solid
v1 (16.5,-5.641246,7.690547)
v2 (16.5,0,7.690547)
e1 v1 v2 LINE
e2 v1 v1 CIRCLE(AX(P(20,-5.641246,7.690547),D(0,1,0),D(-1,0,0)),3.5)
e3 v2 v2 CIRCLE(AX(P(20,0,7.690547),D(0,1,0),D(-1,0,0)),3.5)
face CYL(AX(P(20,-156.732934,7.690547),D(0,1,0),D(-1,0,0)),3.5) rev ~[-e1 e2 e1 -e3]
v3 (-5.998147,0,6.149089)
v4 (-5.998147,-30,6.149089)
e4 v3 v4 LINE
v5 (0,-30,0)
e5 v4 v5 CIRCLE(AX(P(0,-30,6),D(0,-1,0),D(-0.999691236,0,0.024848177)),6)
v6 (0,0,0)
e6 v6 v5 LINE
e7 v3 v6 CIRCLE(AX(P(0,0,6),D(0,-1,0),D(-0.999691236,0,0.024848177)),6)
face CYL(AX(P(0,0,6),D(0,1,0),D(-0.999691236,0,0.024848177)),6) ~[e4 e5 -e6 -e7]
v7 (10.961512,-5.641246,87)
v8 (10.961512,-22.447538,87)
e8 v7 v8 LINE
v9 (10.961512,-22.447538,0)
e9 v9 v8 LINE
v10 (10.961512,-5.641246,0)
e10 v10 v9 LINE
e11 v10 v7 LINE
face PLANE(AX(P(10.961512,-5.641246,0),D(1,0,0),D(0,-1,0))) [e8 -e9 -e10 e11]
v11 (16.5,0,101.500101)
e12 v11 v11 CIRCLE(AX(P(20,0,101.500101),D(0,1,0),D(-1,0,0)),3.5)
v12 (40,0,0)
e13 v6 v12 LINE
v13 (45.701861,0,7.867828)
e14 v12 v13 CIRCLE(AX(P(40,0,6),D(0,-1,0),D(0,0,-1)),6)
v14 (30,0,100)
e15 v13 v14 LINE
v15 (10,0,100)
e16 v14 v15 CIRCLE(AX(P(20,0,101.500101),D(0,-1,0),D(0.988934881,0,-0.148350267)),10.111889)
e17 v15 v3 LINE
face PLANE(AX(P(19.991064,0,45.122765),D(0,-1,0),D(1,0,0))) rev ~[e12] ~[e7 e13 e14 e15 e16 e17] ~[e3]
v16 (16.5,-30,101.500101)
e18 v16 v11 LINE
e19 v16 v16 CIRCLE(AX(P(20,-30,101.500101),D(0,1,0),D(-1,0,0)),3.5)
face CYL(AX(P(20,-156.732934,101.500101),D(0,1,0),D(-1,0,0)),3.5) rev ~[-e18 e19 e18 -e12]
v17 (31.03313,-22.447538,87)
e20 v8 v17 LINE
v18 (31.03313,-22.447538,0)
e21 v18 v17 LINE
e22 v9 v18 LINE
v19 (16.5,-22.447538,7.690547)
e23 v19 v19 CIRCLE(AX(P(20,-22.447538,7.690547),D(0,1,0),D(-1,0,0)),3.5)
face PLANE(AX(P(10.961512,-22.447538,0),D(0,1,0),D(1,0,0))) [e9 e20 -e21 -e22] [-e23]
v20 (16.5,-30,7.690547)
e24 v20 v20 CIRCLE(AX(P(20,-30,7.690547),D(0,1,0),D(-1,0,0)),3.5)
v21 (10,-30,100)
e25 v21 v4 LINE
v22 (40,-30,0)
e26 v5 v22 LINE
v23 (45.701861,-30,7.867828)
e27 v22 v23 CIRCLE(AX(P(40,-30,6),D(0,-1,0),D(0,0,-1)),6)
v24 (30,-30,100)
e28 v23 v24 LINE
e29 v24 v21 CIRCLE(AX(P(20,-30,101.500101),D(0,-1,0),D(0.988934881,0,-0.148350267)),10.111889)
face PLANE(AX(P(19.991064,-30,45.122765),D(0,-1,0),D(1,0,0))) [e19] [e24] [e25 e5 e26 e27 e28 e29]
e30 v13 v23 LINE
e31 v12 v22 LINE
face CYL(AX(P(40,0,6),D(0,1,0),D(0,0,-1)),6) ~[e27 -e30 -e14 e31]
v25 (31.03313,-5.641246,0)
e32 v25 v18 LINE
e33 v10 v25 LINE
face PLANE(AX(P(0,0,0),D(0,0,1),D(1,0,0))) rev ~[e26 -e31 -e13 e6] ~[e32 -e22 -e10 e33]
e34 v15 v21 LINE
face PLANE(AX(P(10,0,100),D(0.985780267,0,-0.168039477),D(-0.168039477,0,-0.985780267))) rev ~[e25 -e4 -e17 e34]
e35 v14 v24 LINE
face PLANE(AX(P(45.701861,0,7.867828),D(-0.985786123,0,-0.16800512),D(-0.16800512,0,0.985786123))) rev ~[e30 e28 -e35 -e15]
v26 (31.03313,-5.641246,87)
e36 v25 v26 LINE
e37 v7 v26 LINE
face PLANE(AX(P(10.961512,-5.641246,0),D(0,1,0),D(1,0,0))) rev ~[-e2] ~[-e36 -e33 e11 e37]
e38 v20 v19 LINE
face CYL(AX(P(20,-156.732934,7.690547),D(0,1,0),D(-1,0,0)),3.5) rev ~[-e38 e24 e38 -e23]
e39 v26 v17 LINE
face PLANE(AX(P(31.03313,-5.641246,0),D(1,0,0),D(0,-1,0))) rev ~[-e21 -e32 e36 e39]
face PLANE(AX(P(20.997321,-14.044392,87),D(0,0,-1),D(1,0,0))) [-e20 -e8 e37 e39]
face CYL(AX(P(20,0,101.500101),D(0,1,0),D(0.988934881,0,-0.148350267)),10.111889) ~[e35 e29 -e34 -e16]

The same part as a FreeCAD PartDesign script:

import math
import FreeCAD as App
import Part
import Sketcher
from FreeCAD import Vector

doc = App.newDocument("Part")
body = doc.addObject("PartDesign::Body", "Body")

sketch1 = doc.addObject("Sketcher::SketchObject", "Sketch")
body.addObject(sketch1)
sketch1.AttachmentSupport = (doc.XZ_Plane, [""])
sketch1.MapMode = "FlatFace"
sketch1.addGeometry([
    Part.ArcOfCircle(Part.Circle(Vector(0, 6, 0), Vector(0, 0, 1), 6), math.radians(178.576158), math.radians(270)),
    Part.LineSegment(Vector(0, 0, 0), Vector(40, 0, 0)),
    Part.ArcOfCircle(Part.Circle(Vector(40, 6, 0), Vector(0, 0, 1), 6), math.radians(-90), math.radians(18.137874)),
    Part.LineSegment(Vector(45.701861, 7.867828, 0), Vector(30, 100, 0)),
    Part.ArcOfCircle(Part.Circle(Vector(20, 101.500101, 0), Vector(0, 0, 1), 10.111889), math.radians(-8.531334), math.radians(188.531334)),
    Part.LineSegment(Vector(10, 100, 0), Vector(-5.998147, 6.149089, 0)),
], False)
sketch1.addConstraint([
    Sketcher.Constraint("Tangent", 0, 2, 1, 1),
    Sketcher.Constraint("Tangent", 1, 2, 2, 1),
    Sketcher.Constraint("Coincident", 2, 2, 3, 1),
    Sketcher.Constraint("Coincident", 3, 2, 4, 1),
    Sketcher.Constraint("Coincident", 4, 2, 5, 1),
    Sketcher.Constraint("Coincident", 5, 2, 0, 1),
    Sketcher.Constraint("Horizontal", 1),
    Sketcher.Constraint("Coincident", 0, 2, -1, 1),
    Sketcher.Constraint("Equal", 0, 2),
    Sketcher.Constraint("Horizontal", 3, 2, 4, 2),
    Sketcher.Constraint("Radius", 0, 6.0),
    Sketcher.Constraint("DistanceX", 1, 1, 1, 2, 40.0),
    Sketcher.Constraint("DistanceX", -1, 1, 4, 3, 20.0),
    Sketcher.Constraint("DistanceX", -1, 1, 3, 2, 30.0),
    Sketcher.Constraint("DistanceY", -1, 1, 3, 2, 100.0),
    Sketcher.Constraint("Radius", 4, 10.111889),
    Sketcher.Constraint("Distance", 3, 93.46061),
    Sketcher.Constraint("DistanceY", -1, 1, 5, 2, 6.149089),
])
pad1 = doc.addObject("PartDesign::Pad", "Pad")
body.addObject(pad1)
pad1.Profile = sketch1
pad1.Length = 30

sketch2 = doc.addObject("Sketcher::SketchObject", "Sketch001")
body.addObject(sketch2)
sketch2.AttachmentSupport = (doc.XZ_Plane, [""])
sketch2.MapMode = "FlatFace"
sketch2.AttachmentOffset = App.Placement(Vector(0, 0, 30), App.Rotation())
sketch2.addGeometry(Part.Circle(Vector(20, 7.690547, 0), Vector(0, 0, 1), 3.5), False)
sketch2.addConstraint([
    Sketcher.Constraint("Diameter", 0, 7.0),
    Sketcher.Constraint("DistanceX", -1, 1, 0, 3, 20.0),
    Sketcher.Constraint("DistanceY", -1, 1, 0, 3, 7.690547),
])
doc.recompute()
hole = doc.addObject("PartDesign::Hole", "Hole")
body.addObject(hole)
hole.Profile = sketch2
hole.ThreadType = "None"
hole.Diameter = 7
hole.DepthType = "ThroughAll"

sketch3 = doc.addObject("Sketcher::SketchObject", "Sketch002")
body.addObject(sketch3)
sketch3.AttachmentSupport = (doc.XZ_Plane, [""])
sketch3.MapMode = "FlatFace"
sketch3.AttachmentOffset = App.Placement(Vector(0, 0, 30), App.Rotation())
sketch3.addGeometry(Part.Circle(Vector(20, 101.500101, 0), Vector(0, 0, 1), 3.5), False)
sketch3.addConstraint([
    Sketcher.Constraint("Diameter", 0, 7.0),
    Sketcher.Constraint("DistanceX", -1, 1, 0, 3, 20.0),
    Sketcher.Constraint("DistanceY", -1, 1, 0, 3, 101.500101),
])
doc.recompute()
hole2 = doc.addObject("PartDesign::Hole", "Hole001")
body.addObject(hole2)
hole2.Profile = sketch3
hole2.ThreadType = "None"
hole2.Diameter = 7
hole2.DepthType = "ThroughAll"

sketch4 = doc.addObject("Sketcher::SketchObject", "Sketch003")
body.addObject(sketch4)
sketch4.AttachmentSupport = (doc.XY_Plane, [""])
sketch4.MapMode = "FlatFace"
sketch4.addGeometry([
    Part.LineSegment(Vector(10.961512, -22.447538, 0), Vector(10.961512, -5.641246, 0)),
    Part.LineSegment(Vector(10.961512, -5.641246, 0), Vector(31.03313, -5.641246, 0)),
    Part.LineSegment(Vector(31.03313, -5.641246, 0), Vector(31.03313, -22.447538, 0)),
    Part.LineSegment(Vector(31.03313, -22.447538, 0), Vector(10.961512, -22.447538, 0)),
], False)
sketch4.addConstraint([
    Sketcher.Constraint("Coincident", 0, 2, 1, 1),
    Sketcher.Constraint("Coincident", 1, 2, 2, 1),
    Sketcher.Constraint("Coincident", 2, 2, 3, 1),
    Sketcher.Constraint("Coincident", 3, 2, 0, 1),
    Sketcher.Constraint("Vertical", 0),
    Sketcher.Constraint("Horizontal", 1),
    Sketcher.Constraint("Vertical", 2),
    Sketcher.Constraint("Horizontal", 3),
    Sketcher.Constraint("DistanceX", 1, 1, 1, 2, 20.071618),
    Sketcher.Constraint("DistanceY", 0, 1, 0, 2, 16.806291),
    Sketcher.Constraint("DistanceX", -1, 1, 1, 2, 31.03313),
    Sketcher.Constraint("DistanceY", 0, 2, -1, 1, 5.641246),
])
pocket1 = doc.addObject("PartDesign::Pocket", "Pocket")
body.addObject(pocket1)
pocket1.Profile = sketch4
pocket1.Length = 87
pocket1.Reversed = True

doc.recompute()
